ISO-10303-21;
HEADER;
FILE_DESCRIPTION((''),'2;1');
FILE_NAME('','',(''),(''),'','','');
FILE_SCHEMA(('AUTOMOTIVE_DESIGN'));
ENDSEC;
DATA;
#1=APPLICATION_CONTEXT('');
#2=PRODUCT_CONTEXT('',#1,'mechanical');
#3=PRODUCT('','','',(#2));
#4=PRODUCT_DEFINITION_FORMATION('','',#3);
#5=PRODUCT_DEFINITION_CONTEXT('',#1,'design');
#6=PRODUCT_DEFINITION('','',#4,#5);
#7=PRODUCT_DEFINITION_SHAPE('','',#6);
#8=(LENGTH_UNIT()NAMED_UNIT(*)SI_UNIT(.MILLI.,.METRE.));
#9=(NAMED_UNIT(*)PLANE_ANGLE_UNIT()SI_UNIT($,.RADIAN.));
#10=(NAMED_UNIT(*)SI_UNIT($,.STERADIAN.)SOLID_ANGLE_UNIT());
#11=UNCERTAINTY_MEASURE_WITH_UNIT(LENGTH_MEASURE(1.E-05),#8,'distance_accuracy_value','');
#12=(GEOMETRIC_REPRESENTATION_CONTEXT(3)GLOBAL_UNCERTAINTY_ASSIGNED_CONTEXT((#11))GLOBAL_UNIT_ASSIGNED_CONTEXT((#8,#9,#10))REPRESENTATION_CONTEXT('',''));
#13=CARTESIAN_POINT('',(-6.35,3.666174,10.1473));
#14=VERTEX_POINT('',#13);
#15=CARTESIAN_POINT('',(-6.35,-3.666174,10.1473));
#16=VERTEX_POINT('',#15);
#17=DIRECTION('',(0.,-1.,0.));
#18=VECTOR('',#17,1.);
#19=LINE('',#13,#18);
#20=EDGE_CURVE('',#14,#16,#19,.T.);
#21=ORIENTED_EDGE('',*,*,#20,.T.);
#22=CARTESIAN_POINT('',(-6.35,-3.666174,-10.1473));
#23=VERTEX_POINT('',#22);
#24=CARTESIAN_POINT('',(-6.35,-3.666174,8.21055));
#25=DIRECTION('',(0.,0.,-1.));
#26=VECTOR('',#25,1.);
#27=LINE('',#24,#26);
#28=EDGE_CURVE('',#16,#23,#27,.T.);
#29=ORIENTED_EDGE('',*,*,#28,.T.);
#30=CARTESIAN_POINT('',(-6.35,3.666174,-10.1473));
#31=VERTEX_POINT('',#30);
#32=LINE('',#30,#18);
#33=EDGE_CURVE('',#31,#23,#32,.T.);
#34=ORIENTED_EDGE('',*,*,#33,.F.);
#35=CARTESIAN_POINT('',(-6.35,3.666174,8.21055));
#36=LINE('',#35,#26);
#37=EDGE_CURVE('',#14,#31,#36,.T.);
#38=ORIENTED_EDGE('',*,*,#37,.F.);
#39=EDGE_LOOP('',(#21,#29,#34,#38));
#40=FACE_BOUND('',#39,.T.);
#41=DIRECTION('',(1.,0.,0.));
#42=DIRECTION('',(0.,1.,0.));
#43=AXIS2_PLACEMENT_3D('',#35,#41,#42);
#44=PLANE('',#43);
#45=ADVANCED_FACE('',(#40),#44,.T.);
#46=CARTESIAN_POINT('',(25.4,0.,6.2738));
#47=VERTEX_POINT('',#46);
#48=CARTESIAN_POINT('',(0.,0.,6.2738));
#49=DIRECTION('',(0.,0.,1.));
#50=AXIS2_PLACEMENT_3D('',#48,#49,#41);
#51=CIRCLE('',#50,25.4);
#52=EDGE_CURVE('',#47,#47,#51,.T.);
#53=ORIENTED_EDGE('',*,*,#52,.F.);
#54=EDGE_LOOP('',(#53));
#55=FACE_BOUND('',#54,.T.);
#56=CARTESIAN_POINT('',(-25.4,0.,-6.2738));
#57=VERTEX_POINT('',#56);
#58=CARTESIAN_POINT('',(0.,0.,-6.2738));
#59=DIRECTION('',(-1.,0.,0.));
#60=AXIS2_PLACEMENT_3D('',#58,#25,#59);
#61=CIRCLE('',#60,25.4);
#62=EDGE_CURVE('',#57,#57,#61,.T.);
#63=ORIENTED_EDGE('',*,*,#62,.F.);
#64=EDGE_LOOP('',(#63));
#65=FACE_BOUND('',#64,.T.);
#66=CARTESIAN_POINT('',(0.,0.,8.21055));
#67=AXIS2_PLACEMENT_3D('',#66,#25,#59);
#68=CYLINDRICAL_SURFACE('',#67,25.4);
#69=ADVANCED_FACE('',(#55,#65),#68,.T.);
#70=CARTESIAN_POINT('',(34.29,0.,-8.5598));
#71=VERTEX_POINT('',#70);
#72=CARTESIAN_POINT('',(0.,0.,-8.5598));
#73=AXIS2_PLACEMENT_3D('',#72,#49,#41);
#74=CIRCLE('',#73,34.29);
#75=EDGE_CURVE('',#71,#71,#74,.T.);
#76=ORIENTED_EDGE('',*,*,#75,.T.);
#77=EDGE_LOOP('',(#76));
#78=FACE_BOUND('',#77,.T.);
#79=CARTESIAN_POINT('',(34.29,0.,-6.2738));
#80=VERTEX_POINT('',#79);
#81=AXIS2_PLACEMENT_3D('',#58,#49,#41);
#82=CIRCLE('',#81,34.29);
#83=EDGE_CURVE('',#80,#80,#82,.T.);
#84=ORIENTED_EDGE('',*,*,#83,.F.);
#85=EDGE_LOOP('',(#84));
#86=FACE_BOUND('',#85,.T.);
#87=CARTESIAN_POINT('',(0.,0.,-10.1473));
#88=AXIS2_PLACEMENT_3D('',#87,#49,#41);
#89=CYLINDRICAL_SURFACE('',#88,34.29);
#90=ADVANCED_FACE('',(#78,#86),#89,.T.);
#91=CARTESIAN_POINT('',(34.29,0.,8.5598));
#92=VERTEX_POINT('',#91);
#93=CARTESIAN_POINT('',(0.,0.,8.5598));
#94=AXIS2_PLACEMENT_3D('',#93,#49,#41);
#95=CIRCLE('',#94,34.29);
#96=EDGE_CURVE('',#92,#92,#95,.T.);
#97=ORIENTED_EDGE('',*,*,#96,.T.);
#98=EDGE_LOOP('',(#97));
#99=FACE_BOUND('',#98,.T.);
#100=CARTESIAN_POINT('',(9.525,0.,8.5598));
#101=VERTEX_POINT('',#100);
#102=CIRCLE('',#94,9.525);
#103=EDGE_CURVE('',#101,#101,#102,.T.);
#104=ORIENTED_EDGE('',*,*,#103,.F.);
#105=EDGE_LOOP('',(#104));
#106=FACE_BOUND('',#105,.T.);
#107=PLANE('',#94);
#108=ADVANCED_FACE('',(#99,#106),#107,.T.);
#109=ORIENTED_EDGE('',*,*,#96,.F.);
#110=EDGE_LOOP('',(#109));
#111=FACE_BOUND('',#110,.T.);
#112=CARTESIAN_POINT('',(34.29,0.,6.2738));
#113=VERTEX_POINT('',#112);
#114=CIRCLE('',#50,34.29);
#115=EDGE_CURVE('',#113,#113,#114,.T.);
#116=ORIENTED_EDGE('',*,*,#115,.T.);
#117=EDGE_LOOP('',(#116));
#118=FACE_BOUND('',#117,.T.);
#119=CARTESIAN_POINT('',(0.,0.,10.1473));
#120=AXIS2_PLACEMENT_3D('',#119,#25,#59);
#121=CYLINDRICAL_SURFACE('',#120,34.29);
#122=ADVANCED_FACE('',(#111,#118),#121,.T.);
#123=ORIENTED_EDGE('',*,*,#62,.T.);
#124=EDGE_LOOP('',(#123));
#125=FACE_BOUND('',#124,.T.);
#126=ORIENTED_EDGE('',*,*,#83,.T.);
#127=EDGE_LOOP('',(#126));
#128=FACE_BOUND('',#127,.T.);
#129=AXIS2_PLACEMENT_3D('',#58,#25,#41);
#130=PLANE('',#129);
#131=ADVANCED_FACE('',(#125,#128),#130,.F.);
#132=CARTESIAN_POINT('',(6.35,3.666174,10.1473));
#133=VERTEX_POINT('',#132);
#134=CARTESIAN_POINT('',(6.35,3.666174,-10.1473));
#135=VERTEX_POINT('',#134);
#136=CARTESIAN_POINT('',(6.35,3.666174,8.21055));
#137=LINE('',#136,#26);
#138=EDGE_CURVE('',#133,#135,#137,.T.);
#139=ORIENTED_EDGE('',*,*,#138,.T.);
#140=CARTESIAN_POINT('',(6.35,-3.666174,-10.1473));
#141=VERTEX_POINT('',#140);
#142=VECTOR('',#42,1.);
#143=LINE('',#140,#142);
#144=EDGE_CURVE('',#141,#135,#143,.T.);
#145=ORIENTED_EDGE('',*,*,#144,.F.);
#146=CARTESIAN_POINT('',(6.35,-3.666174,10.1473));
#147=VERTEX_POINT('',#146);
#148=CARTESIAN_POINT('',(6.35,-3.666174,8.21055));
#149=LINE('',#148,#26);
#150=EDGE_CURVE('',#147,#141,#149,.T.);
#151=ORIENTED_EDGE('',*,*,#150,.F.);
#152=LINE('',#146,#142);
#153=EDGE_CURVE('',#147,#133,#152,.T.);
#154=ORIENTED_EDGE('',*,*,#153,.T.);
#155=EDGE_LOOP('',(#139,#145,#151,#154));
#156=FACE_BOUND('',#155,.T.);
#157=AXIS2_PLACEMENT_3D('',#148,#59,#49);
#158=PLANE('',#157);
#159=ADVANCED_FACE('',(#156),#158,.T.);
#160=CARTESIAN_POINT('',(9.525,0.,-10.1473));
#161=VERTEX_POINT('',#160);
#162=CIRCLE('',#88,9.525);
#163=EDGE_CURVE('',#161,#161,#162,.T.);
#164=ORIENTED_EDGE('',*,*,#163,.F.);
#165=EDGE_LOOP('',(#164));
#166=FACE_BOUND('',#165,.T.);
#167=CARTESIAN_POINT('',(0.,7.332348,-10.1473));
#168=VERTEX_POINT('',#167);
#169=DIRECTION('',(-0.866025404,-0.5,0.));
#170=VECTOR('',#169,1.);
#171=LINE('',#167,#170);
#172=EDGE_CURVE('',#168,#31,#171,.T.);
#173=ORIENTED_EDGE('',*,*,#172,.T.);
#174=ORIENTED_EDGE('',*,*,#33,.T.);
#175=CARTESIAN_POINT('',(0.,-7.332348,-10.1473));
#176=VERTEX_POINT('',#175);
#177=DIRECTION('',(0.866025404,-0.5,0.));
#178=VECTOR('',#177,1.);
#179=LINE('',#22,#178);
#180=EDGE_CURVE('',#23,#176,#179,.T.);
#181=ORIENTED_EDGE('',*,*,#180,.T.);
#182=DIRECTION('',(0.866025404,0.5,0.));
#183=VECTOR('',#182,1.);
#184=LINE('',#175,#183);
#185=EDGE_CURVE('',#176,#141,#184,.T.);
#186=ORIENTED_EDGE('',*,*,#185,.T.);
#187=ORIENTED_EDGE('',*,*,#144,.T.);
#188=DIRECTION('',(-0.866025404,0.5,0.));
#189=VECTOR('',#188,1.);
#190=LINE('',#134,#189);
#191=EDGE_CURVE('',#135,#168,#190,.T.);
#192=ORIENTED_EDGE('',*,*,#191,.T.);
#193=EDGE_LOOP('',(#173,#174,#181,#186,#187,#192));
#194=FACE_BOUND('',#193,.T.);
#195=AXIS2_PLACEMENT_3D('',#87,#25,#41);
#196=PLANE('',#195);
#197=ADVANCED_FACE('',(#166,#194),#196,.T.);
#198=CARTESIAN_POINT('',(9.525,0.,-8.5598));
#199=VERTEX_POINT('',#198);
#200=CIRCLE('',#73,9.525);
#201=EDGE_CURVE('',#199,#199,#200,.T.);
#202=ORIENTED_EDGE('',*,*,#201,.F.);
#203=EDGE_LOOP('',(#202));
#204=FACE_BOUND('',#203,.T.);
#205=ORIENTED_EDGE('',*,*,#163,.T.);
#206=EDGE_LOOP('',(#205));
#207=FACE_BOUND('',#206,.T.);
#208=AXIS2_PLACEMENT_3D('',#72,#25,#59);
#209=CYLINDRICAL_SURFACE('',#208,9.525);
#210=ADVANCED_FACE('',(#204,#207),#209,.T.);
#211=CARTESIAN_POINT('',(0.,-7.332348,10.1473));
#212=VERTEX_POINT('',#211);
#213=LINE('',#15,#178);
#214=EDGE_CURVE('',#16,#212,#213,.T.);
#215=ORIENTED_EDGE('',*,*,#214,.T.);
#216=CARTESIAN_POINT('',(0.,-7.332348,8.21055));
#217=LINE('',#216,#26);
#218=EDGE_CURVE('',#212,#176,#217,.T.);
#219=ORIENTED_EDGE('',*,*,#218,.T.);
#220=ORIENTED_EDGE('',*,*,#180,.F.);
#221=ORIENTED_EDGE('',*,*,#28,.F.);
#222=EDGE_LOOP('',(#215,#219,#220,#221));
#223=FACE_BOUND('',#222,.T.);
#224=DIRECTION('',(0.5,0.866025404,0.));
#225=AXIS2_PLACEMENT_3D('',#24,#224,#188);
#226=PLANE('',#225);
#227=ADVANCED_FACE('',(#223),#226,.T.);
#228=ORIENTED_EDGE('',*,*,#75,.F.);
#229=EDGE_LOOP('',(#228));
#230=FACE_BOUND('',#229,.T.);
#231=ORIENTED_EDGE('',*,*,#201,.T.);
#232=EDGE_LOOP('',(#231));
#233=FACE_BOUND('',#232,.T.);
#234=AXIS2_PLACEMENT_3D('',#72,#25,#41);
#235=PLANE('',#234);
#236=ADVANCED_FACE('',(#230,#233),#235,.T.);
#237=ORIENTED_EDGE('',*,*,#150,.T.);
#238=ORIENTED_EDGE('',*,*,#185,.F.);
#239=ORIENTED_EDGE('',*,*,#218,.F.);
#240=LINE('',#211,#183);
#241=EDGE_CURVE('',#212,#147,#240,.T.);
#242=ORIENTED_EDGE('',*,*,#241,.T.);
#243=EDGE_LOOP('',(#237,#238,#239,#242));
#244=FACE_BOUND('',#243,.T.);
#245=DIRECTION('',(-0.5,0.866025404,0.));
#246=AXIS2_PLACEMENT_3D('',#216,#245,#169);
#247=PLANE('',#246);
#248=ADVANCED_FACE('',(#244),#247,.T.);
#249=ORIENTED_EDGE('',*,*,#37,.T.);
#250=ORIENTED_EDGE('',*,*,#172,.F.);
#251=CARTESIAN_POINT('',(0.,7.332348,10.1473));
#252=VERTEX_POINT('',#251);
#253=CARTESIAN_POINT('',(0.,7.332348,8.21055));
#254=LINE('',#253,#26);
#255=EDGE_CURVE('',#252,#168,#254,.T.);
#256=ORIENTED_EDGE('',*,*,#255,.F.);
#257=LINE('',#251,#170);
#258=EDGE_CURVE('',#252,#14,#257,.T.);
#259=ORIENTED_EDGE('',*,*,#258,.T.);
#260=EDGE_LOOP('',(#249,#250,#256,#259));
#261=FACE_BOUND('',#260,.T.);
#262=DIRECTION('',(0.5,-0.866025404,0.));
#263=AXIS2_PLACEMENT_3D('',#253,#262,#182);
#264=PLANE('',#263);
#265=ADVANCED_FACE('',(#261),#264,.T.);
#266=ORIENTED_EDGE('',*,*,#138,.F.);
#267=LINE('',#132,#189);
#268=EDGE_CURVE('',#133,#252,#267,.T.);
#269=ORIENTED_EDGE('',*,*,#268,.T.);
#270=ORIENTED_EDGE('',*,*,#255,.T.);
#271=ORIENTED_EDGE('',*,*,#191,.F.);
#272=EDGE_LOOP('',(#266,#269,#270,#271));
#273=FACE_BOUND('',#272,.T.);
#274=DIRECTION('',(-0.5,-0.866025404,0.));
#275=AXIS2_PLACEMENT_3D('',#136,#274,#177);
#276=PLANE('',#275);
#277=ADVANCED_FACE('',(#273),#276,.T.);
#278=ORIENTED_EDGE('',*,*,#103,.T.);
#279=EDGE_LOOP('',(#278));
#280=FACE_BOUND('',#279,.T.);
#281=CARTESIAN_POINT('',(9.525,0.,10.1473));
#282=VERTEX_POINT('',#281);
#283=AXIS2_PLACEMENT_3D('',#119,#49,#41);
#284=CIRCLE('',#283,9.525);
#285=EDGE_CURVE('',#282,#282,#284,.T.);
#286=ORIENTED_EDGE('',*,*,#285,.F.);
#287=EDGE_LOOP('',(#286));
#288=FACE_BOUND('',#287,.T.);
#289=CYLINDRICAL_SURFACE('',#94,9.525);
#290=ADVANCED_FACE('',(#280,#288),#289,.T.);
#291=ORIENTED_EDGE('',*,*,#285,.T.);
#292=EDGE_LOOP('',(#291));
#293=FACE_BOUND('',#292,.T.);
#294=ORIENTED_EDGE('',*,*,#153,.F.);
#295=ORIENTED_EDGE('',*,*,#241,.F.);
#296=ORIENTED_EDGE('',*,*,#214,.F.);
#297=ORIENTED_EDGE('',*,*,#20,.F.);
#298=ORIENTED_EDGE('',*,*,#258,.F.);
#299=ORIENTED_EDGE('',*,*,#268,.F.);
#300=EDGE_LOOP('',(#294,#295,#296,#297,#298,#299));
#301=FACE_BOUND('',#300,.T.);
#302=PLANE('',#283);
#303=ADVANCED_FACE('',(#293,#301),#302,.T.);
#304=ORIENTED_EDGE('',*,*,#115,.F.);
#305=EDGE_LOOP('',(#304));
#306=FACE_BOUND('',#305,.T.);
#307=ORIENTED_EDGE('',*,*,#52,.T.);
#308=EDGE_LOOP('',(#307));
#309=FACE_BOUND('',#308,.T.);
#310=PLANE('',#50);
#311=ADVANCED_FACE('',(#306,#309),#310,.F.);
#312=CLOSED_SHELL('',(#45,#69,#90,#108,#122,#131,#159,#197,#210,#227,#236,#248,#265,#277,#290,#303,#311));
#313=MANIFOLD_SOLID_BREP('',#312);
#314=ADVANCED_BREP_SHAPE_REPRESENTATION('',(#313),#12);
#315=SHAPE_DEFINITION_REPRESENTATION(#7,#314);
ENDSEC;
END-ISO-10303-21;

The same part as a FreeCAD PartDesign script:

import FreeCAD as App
import Part
import Sketcher
from FreeCAD import Vector
Q = App.Units.Quantity


def add_polygon(sketch, points):
    """Adds a closed chain of lines whose ends are joined by coincident constraints."""
    first, n = sketch.GeometryCount, len(points)
    for a, b in zip(points, points[1:] + points[:1]):
        sketch.addGeometry(Part.LineSegment(App.Vector(*a, 0), App.Vector(*b, 0)), False)
    for i in range(n):
        sketch.addConstraint(Sketcher.Constraint("Coincident", first + i, 2, first + (i + 1) % n, 1))

doc = App.newDocument("Part")
body = doc.addObject("PartDesign::Body", "Body")

sketch1 = doc.addObject("Sketcher::SketchObject", "Sketch")
body.addObject(sketch1)
sketch1.AttachmentSupport = (doc.XY_Plane, [""])
sketch1.MapMode = "FlatFace"
sketch1.addGeometry(Part.Circle(Vector(0, 0, 0), Vector(0, 0, 1), 25), False)
add_polygon(sketch1, [(-6, 4), (0, 7), (6, 4), (6, -4), (0, -7), (-6, -4)])
sketch1.addConstraint(Sketcher.Constraint("Vertical", 3))
sketch1.addConstraint(Sketcher.Constraint("Vertical", 6))
sketch1.addConstraint(Sketcher.Constraint("Coincident", 0, 3, -1, 1))
sketch1.addConstraint(Sketcher.Constraint("Symmetric", 1, 2, 4, 2, -1, 1))
sketch1.addConstraint(Sketcher.Constraint("Symmetric", 2, 2, 5, 2, -1, 1))
sketch1.addConstraint(Sketcher.Constraint("PointOnObject", 1, 2, -2))
sketch1.addConstraint(Sketcher.Constraint("Parallel", 1, 4))
sketch1.addConstraint(Sketcher.Constraint("Horizontal", 3, 2, 5, 2))
sketch1.addConstraint(Sketcher.Constraint("Diameter", 0, Q("2 in")))
sketch1.addConstraint(Sketcher.Constraint("Angle", 1, Q("30 deg")))
sketch1.addConstraint(Sketcher.Constraint("DistanceX", 5, 2, 3, 2, Q("0.5 in")))
sketch1.addConstraint(Sketcher.Constraint("DistanceY", 3, 2, 3, 1, 7.332348))
pad1 = doc.addObject("PartDesign::Pad", "Pad")
body.addObject(pad1)
pad1.Profile = sketch1
pad1.Length = Q("0.6465 in")
pad1.Midplane = True

sketch2 = doc.addObject("Sketcher::SketchObject", "Sketch001")
body.addObject(sketch2)
sketch2.AttachmentSupport = (doc.XY_Plane, [""])
sketch2.MapMode = "FlatFace"
sketch2.AttachmentOffset = App.Placement(Vector(0, 0, 8.21055), App.Rotation())
sketch2.addGeometry(Part.Circle(Vector(0, 0, 0), Vector(0, 0, 1), 34), False)
add_polygon(sketch2, [(-6, 4), (0, 7), (6, 4), (6, -4), (0, -7), (-6, -4)])
sketch2.addConstraint(Sketcher.Constraint("Vertical", 3))
sketch2.addConstraint(Sketcher.Constraint("Vertical", 6))
sketch2.addConstraint(Sketcher.Constraint("Coincident", 0, 3, -1, 1))
sketch2.addConstraint(Sketcher.Constraint("Symmetric", 1, 2, 4, 2, -1, 1))
sketch2.addConstraint(Sketcher.Constraint("Symmetric", 2, 2, 5, 2, -1, 1))
sketch2.addConstraint(Sketcher.Constraint("PointOnObject", 1, 2, -2))
sketch2.addConstraint(Sketcher.Constraint("Parallel", 1, 4))
sketch2.addConstraint(Sketcher.Constraint("Horizontal", 3, 2, 5, 2))
sketch2.addConstraint(Sketcher.Constraint("Diameter", 0, Q("2.7 in")))
sketch2.addConstraint(Sketcher.Constraint("Angle", 1, Q("30 deg")))
sketch2.addConstraint(Sketcher.Constraint("DistanceX", 5, 2, 3, 2, Q("0.5 in")))
sketch2.addConstraint(Sketcher.Constraint("DistanceY", 3, 2, 3, 1, 7.332348))
pad2 = doc.addObject("PartDesign::Pad", "Pad001")
body.addObject(pad2)
pad2.Profile = sketch2
pad2.Length = Q("0.1525 in")
pad2.Midplane = True

sketch3 = doc.addObject("Sketcher::SketchObject", "Sketch002")
body.addObject(sketch3)
sketch3.AttachmentSupport = (doc.XY_Plane, [""])
sketch3.MapMode = "FlatFace"
sketch3.AttachmentOffset = App.Placement(Vector(0, 0, 0.3995 * 25.4), App.Rotation())
sketch3.addGeometry(Part.Circle(Vector(0, 0, 0), Vector(0, 0, 1), 34), False)
sketch3.addGeometry(Part.Circle(Vector(0, 0, 0), Vector(0, 0, 1), 10), False)
sketch3.addConstraint(Sketcher.Constraint("Coincident", 0, 3, -1, 1))
sketch3.addConstraint(Sketcher.Constraint("Coincident", 1, 3, -1, 1))
sketch3.addConstraint(Sketcher.Constraint("Diameter", 0, Q("2.7 in")))
sketch3.addConstraint(Sketcher.Constraint("Diameter", 1, Q("0.75 in")))
pocket1 = doc.addObject("PartDesign::Pocket", "Pocket")
body.addObject(pocket1)
pocket1.Profile = sketch3
pocket1.Length = Q("0.0625 in")
doc.recompute()

mirrored = doc.addObject("PartDesign::Mirrored", "Mirrored")
body.addObject(mirrored)
mirrored.Originals = [pad2, pocket1]
mirrored.MirrorPlane = (doc.XY_Plane, [""])
body.Tip = mirrored

doc.recompute()
